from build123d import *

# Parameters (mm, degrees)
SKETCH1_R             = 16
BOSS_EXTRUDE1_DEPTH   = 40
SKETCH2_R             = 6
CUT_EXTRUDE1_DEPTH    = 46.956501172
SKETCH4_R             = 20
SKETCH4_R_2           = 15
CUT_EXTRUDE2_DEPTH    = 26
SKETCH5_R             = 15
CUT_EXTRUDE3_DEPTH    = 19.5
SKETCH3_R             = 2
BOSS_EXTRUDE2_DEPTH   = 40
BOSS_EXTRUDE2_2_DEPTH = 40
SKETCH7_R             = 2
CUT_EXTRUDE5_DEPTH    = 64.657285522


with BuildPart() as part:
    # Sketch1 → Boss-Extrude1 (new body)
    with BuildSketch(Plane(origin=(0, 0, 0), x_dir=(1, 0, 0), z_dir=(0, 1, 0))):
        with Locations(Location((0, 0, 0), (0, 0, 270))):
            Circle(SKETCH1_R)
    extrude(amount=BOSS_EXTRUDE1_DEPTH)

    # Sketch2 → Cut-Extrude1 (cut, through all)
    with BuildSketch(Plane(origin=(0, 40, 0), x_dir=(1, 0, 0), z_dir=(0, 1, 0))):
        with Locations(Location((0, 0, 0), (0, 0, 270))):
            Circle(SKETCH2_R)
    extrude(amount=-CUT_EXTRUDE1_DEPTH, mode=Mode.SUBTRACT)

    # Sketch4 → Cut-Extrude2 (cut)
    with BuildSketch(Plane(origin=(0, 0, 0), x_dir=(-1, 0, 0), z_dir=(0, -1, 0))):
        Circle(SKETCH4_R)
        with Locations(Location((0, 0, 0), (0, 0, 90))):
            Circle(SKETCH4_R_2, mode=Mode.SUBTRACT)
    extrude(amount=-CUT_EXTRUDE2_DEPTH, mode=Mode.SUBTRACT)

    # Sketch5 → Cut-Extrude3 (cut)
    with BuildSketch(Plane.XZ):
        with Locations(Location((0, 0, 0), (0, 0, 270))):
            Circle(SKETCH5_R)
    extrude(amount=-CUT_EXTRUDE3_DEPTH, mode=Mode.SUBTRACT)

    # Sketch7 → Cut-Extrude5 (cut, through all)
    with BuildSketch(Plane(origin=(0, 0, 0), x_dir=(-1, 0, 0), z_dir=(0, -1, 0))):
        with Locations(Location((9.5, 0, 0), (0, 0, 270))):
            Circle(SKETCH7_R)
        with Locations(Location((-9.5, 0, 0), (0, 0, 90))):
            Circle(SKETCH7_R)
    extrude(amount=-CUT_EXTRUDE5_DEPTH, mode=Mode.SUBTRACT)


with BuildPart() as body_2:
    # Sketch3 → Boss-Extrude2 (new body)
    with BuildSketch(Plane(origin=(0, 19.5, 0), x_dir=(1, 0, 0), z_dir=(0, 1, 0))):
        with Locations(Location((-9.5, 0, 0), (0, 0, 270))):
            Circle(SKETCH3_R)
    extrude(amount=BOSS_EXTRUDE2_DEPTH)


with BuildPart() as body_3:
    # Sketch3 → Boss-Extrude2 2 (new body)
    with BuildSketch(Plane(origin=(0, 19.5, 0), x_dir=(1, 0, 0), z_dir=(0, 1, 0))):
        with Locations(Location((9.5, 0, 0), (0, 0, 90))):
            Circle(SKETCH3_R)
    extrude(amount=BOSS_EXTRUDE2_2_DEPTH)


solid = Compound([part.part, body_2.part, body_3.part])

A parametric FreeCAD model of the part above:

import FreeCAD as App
import Part
import Sketcher

V = App.Vector

doc = App.newDocument("Part")
body = doc.addObject("PartDesign::Body", "Body")

# Sketch on XZ plane
sketch1 = body.newObject("Sketcher::SketchObject", "Sketch")
sketch1.AttachmentSupport = (doc.getObject("XZ_Plane"), [""])
sketch1.MapMode = "FlatFace"
sketch1.addGeometry(Part.Circle(V(0, 0, 0), V(0, 0, 1), 16), False)
sketch1.addConstraint([
    Sketcher.Constraint("Coincident", 0, 3, -1, 1),
    Sketcher.Constraint("Diameter", 0, 32.0),
])
pad1 = body.newObject("PartDesign::Pad", "Pad")
pad1.Profile = sketch1
pad1.Length = 40
pad1.Reversed = True

# Sketch on XZ plane
sketch2 = body.newObject("Sketcher::SketchObject", "Sketch001")
sketch2.AttachmentSupport = (doc.getObject("XZ_Plane"), [""])
sketch2.MapMode = "FlatFace"
sketch2.AttachmentOffset = App.Placement(V(0, 0, -40), App.Rotation())
sketch2.addGeometry(Part.Circle(V(0, 0, 0), V(0, 0, 1), 6), False)
sketch2.addConstraint([
    Sketcher.Constraint("Coincident", 0, 3, -1, 1),
    Sketcher.Constraint("Diameter", 0, 12.0),
])
pocket1 = body.newObject("PartDesign::Pocket", "Pocket")
pocket1.Profile = sketch2
pocket1.Type = "ThroughAll"
pocket1.Reversed = True

# Sketch on XZ plane
sketch3 = body.newObject("Sketcher::SketchObject", "Sketch002")
sketch3.AttachmentSupport = (doc.getObject("XZ_Plane"), [""])
sketch3.MapMode = "FlatFace"
sketch3.addGeometry([
    Part.Circle(V(0, 0, 0), V(0, 0, 1), 20),
    Part.Circle(V(0, 0, 0), V(0, 0, 1), 15),
], False)
sketch3.addConstraint([
    Sketcher.Constraint("Coincident", 0, 3, -1, 1),
    Sketcher.Constraint("Coincident", 1, 3, -1, 1),
    Sketcher.Constraint("Diameter", 0, 40.0),
    Sketcher.Constraint("Diameter", 1, 30.0),
])
pocket2 = body.newObject("PartDesign::Pocket", "Pocket001")
pocket2.Profile = sketch3
pocket2.Length = 26

# Sketch on XZ plane
sketch4 = body.newObject("Sketcher::SketchObject", "Sketch003")
sketch4.AttachmentSupport = (doc.getObject("XZ_Plane"), [""])
sketch4.MapMode = "FlatFace"
sketch4.addGeometry(Part.Circle(V(0, 0, 0), V(0, 0, 1), 15), False)
sketch4.addConstraint([
    Sketcher.Constraint("Coincident", 0, 3, -1, 1),
    Sketcher.Constraint("Diameter", 0, 30.0),
])
pocket3 = body.newObject("PartDesign::Pocket", "Pocket002")
pocket3.Profile = sketch4
pocket3.Length = 19.5

# Sketch on XZ plane
sketch5 = body.newObject("Sketcher::SketchObject", "Sketch004")
sketch5.AttachmentSupport = (doc.getObject("XZ_Plane"), [""])
sketch5.MapMode = "FlatFace"
sketch5.addGeometry([
    Part.Circle(V(-9.5, 0, 0), V(0, 0, 1), 2),
    Part.Circle(V(9.5, 0, 0), V(0, 0, 1), 2),
], False)
sketch5.addConstraint([
    Sketcher.Constraint("Equal", 0, 1),
    Sketcher.Constraint("Symmetric", 0, 3, 1, 3, -1, 1),
    Sketcher.Constraint("PointOnObject", 0, 3, -1),
    Sketcher.Constraint("Diameter", 0, 4.0),
    Sketcher.Constraint("DistanceX", 0, 3, 1, 3, 19.0),
])
pocket4 = body.newObject("PartDesign::Pocket", "Pocket003")
pocket4.Profile = sketch5
pocket4.Type = "ThroughAll"
body2 = doc.addObject("PartDesign::Body", "Body001")

# Sketch on XZ plane
sketch6 = body2.newObject("Sketcher::SketchObject", "Sketch005")
sketch6.AttachmentSupport = (doc.getObject("XZ_Plane001"), [""])
sketch6.MapMode = "FlatFace"
sketch6.AttachmentOffset = App.Placement(V(0, 0, -19.5), App.Rotation())
sketch6.addGeometry(Part.Circle(V(-9.5, 0, 0), V(0, 0, 1), 2), False)
sketch6.addConstraint([
    Sketcher.Constraint("PointOnObject", 0, 3, -1),
    Sketcher.Constraint("Diameter", 0, 4.0),
    Sketcher.Constraint("DistanceX", 0, 3, -1, 1, 9.5),
])
pad2 = body2.newObject("PartDesign::Pad", "Pad001")
pad2.Profile = sketch6
pad2.Length = 40
pad2.Reversed = True
body3 = doc.addObject("PartDesign::Body", "Body002")

# Sketch on XZ plane
sketch7 = body3.newObject("Sketcher::SketchObject", "Sketch006")
sketch7.AttachmentSupport = (doc.getObject("XZ_Plane002"), [""])
sketch7.MapMode = "FlatFace"
sketch7.AttachmentOffset = App.Placement(V(0, 0, -19.5), App.Rotation())
sketch7.addGeometry(Part.Circle(V(9.5, 0, 0), V(0, 0, 1), 2), False)
sketch7.addConstraint([
    Sketcher.Constraint("PointOnObject", 0, 3, -1),
    Sketcher.Constraint("Diameter", 0, 4.0),
    Sketcher.Constraint("DistanceX", -1, 1, 0, 3, 9.5),
])
pad3 = body3.newObject("PartDesign::Pad", "Pad002")
pad3.Profile = sketch7
pad3.Length = 40
pad3.Reversed = True

doc.recompute()
